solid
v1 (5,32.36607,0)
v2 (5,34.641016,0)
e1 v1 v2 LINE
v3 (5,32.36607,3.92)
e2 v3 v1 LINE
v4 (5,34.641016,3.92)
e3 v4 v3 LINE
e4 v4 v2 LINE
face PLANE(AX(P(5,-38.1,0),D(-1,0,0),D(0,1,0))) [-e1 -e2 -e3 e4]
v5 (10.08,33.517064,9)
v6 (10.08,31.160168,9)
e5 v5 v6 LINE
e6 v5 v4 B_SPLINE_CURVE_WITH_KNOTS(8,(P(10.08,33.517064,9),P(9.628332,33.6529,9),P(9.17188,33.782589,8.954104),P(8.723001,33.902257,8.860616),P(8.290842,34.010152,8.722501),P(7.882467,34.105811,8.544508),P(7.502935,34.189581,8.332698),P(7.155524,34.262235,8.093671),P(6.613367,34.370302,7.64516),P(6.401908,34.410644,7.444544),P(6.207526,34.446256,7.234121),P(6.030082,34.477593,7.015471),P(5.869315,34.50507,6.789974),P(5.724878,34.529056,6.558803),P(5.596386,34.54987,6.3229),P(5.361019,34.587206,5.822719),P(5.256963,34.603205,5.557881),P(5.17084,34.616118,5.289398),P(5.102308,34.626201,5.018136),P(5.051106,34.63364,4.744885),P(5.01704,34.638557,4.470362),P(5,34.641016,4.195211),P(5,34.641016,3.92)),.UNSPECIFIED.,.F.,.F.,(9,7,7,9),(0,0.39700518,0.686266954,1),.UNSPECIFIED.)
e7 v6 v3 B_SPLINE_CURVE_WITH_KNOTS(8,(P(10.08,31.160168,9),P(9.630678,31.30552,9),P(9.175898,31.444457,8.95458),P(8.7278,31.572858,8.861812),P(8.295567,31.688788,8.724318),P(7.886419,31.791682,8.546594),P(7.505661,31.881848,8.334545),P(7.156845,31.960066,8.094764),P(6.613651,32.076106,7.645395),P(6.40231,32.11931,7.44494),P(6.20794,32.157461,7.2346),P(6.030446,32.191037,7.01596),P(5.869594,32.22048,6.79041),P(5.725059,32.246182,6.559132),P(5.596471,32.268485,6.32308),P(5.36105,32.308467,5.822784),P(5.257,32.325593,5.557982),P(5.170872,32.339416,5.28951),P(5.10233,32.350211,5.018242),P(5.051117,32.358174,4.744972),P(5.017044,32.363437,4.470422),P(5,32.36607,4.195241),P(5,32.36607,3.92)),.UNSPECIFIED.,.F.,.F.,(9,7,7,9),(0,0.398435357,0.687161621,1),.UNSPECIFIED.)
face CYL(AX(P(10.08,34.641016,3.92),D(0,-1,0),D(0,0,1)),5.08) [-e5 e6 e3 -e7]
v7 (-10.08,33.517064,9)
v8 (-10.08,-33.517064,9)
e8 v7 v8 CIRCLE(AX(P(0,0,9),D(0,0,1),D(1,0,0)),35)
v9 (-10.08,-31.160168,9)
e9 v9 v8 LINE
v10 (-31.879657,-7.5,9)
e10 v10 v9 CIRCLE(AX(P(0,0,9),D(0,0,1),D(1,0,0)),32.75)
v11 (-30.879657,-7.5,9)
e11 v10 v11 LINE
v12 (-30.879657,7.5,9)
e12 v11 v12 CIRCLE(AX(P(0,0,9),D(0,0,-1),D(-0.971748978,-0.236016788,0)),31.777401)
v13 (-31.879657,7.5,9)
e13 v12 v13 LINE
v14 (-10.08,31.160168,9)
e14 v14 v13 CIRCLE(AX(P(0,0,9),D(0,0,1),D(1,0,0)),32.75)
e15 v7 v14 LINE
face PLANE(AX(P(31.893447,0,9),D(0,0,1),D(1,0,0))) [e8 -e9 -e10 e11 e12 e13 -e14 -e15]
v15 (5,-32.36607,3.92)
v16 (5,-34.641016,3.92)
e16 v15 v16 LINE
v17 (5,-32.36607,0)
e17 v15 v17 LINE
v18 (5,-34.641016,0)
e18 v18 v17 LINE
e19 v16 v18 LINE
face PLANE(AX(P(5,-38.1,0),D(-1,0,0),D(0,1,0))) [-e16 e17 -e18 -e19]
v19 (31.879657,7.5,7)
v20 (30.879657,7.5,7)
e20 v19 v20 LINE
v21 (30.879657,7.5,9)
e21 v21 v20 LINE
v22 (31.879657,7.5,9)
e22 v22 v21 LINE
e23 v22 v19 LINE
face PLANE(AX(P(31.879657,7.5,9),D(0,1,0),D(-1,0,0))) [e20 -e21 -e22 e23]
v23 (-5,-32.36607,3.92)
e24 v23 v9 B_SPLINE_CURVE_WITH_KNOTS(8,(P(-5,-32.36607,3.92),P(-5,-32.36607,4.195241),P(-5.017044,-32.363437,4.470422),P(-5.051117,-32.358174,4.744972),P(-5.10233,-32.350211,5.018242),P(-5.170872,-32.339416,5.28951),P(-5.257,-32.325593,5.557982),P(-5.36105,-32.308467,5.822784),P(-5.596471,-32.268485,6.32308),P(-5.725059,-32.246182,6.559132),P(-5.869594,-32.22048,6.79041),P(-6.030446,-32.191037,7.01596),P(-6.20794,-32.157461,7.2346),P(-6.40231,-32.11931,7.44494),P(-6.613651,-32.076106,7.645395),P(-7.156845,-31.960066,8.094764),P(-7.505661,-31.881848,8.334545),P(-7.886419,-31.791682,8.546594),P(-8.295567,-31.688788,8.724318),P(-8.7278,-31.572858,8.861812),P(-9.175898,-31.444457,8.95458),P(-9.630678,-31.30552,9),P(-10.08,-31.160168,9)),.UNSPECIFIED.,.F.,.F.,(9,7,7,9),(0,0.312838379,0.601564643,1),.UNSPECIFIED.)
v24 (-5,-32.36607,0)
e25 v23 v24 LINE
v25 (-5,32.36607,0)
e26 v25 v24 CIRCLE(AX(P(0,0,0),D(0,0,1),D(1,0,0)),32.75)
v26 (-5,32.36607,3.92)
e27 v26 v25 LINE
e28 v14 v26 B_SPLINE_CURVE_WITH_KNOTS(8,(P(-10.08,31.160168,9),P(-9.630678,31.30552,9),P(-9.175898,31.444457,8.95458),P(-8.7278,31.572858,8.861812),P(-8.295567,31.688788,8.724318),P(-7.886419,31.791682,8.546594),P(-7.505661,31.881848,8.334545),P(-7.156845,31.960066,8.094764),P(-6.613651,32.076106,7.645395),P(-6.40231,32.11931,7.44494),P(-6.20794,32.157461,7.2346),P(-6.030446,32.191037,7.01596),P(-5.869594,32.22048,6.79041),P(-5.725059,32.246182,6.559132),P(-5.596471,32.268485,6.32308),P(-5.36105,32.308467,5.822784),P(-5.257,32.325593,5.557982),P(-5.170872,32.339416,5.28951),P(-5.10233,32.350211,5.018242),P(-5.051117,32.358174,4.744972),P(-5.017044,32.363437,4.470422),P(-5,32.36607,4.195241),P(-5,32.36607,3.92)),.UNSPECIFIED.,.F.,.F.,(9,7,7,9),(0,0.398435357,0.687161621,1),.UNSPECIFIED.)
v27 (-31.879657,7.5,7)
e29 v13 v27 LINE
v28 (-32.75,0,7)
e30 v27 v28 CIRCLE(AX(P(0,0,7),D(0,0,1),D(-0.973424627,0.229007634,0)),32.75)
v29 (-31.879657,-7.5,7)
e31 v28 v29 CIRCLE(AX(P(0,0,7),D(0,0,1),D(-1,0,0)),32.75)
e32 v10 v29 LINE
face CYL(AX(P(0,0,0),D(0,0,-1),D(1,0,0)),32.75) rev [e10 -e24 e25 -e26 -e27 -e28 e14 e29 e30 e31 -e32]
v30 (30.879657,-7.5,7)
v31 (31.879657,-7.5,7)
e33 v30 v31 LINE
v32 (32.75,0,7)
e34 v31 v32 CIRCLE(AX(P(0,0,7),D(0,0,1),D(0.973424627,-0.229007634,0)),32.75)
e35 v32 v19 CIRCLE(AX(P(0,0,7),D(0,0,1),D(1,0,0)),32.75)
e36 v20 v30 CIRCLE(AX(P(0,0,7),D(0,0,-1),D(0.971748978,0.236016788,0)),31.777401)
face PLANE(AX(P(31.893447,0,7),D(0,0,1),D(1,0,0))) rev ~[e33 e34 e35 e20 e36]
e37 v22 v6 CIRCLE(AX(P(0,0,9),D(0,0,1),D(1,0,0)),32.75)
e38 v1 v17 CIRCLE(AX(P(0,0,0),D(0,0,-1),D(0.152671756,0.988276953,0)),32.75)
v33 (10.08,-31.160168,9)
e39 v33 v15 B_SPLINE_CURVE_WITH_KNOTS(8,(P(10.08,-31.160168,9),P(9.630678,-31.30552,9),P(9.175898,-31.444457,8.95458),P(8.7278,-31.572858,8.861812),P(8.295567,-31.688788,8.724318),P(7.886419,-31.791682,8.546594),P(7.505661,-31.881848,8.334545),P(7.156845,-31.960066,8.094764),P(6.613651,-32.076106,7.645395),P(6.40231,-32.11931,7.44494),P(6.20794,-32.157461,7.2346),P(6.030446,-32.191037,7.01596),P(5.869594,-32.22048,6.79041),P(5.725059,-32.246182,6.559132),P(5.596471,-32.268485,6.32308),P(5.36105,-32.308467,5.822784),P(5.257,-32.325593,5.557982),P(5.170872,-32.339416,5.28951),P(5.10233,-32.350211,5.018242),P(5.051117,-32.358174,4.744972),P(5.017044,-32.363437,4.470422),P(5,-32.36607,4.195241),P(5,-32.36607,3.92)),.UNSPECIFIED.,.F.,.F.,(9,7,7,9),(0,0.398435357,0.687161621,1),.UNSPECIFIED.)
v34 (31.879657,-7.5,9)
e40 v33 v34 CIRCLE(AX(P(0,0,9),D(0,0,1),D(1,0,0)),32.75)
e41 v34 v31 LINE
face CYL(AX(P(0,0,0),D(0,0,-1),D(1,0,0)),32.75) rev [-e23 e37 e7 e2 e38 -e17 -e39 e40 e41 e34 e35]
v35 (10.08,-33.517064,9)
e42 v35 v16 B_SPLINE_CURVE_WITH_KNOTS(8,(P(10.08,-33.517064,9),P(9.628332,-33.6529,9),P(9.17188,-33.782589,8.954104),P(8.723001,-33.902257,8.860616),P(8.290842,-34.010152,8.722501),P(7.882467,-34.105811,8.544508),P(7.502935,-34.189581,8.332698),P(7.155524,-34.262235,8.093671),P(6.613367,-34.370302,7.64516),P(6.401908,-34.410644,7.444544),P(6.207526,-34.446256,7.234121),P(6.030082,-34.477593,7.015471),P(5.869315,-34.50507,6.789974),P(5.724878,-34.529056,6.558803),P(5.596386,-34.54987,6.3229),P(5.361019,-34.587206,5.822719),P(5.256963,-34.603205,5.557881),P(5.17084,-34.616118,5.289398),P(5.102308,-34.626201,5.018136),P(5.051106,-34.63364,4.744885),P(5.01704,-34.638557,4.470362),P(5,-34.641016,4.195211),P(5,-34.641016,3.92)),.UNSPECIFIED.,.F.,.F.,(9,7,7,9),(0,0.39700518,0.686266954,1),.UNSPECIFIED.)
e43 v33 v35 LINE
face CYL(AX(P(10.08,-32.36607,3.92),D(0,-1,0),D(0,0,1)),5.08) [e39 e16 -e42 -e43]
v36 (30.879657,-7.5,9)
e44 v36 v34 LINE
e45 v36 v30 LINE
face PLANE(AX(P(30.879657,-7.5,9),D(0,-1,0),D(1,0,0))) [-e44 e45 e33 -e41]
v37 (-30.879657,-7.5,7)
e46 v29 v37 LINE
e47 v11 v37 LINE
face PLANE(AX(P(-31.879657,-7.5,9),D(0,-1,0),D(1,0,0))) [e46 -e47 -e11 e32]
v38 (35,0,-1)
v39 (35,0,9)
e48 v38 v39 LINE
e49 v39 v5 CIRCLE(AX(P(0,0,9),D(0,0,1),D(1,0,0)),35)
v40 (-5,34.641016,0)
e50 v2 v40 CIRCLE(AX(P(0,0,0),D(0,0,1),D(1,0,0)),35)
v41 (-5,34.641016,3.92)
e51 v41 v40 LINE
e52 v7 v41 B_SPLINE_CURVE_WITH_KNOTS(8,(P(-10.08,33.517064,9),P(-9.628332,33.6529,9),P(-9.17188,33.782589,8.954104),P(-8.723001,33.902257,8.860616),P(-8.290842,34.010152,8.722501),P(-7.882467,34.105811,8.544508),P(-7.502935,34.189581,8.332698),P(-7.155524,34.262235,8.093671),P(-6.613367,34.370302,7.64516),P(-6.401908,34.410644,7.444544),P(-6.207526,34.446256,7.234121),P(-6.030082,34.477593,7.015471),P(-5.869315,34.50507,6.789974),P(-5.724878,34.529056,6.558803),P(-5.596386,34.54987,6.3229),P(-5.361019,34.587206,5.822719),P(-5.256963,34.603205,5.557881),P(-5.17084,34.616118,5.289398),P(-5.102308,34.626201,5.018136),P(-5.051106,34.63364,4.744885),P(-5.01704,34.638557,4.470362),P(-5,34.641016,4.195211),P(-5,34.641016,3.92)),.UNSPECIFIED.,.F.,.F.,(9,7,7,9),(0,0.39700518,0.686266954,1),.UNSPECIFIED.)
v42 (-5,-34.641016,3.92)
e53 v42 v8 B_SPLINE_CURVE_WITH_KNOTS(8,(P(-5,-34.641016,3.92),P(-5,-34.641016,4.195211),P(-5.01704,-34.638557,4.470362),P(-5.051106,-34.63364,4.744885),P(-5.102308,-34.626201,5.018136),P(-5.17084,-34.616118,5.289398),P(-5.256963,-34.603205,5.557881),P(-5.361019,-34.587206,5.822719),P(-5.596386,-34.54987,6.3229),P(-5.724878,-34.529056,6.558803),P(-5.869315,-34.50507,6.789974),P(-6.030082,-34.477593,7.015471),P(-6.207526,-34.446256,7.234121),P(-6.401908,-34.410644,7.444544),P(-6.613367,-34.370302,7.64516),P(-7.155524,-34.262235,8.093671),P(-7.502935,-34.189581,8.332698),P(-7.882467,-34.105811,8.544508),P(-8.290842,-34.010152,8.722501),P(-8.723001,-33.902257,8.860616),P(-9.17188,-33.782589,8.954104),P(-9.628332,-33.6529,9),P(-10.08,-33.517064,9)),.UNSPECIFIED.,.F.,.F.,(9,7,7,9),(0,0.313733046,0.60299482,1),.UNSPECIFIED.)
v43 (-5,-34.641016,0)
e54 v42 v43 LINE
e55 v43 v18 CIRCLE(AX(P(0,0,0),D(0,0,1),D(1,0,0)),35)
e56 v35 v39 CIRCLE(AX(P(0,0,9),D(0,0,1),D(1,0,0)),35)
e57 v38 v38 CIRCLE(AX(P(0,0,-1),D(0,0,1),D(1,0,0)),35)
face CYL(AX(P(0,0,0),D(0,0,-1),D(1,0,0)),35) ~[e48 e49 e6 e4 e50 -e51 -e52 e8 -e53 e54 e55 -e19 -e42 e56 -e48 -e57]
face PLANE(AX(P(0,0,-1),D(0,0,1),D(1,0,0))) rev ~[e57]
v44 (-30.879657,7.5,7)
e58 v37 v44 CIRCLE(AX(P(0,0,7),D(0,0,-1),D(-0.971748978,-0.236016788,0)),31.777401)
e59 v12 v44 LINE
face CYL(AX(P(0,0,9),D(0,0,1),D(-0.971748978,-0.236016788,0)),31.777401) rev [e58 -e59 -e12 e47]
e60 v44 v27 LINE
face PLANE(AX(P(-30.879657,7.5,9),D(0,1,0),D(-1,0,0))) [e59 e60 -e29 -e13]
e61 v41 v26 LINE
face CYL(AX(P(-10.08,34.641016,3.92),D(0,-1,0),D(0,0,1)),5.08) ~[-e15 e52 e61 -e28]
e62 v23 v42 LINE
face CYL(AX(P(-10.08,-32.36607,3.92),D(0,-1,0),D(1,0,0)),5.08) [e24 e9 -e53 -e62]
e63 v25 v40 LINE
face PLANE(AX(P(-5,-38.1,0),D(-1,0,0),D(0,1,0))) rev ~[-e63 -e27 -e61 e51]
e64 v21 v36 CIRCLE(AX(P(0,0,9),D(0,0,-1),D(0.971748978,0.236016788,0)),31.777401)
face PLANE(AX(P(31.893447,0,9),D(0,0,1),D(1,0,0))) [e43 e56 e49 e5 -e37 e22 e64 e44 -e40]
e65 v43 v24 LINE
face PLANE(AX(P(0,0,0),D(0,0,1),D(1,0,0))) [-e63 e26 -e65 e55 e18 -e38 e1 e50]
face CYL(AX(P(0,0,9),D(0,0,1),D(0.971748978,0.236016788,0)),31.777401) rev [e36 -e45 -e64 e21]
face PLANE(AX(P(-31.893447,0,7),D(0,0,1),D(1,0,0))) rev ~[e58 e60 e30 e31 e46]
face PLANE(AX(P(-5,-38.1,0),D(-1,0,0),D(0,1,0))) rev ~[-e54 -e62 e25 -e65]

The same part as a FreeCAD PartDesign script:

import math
import FreeCAD as App
import Part
import Sketcher
from FreeCAD import Vector


def edges_at(feature, points):
    """Names of the edges that pass closest to the given points."""
    edges = feature.Shape.Edges
    near = lambda p: min(range(len(edges)), key=lambda i: edges[i].distToShape(Part.Vertex(*p))[0])
    return sorted({f"Edge{near(p) + 1}" for p in points})


def add_polygon(sketch, points):
    """Adds a closed chain of lines whose ends are joined by coincident constraints."""
    first, n = sketch.GeometryCount, len(points)
    for a, b in zip(points, points[1:] + points[:1]):
        sketch.addGeometry(Part.LineSegment(App.Vector(*a, 0), App.Vector(*b, 0)), False)
    for i in range(n):
        sketch.addConstraint(Sketcher.Constraint("Coincident", first + i, 2, first + (i + 1) % n, 1))

doc = App.newDocument("Part")
body = doc.addObject("PartDesign::Body", "Body")

sketch1 = doc.addObject("Sketcher::SketchObject", "Sketch")
body.addObject(sketch1)
sketch1.AttachmentSupport = (doc.XY_Plane, [""])
sketch1.MapMode = "FlatFace"
sketch1.addGeometry(Part.Circle(Vector(0, 0, 0), Vector(0, 0, 1), 35), False)
sketch1.addConstraint([
    Sketcher.Constraint("Coincident", 0, 3, -1, 1),
    Sketcher.Constraint("Diameter", 0, 70.0),
])
pad1 = doc.addObject("PartDesign::Pad", "Pad")
body.addObject(pad1)
pad1.Profile = sketch1
pad1.Length = 1
pad1.Reversed = True

sketch2 = doc.addObject("Sketcher::SketchObject", "Sketch001")
body.addObject(sketch2)
sketch2.AttachmentSupport = (doc.XY_Plane, [""])
sketch2.MapMode = "FlatFace"
sketch2.addGeometry([
    Part.Circle(Vector(0, 0, 0), Vector(0, 0, 1), 35),
    Part.Circle(Vector(0, 0, 0), Vector(0, 0, 1), 33),
], False)
sketch2.addConstraint([
    Sketcher.Constraint("Coincident", 0, 3, -1, 1),
    Sketcher.Constraint("Coincident", 1, 3, -1, 1),
    Sketcher.Constraint("Diameter", 0, 70.0),
    Sketcher.Constraint("Diameter", 1, 65.5),
])
pad2 = doc.addObject("PartDesign::Pad", "Pad001")
body.addObject(pad2)
pad2.Profile = sketch2
pad2.Length = 9

sketch3 = doc.addObject("Sketcher::SketchObject", "Sketch002")
body.addObject(sketch3)
sketch3.AttachmentSupport = (doc.XY_Plane, [""])
sketch3.MapMode = "FlatFace"
sketch3.AttachmentOffset = App.Placement(Vector(0, 0, 9), App.Rotation())
sketch3.addGeometry([
    Part.ArcOfCircle(Part.Circle(Vector(0, 0, 0), Vector(0, 0, 1), 32.7), math.radians(166.76), math.radians(180)),
    Part.ArcOfCircle(Part.Circle(Vector(0, 0, 0), Vector(0, 0, 1), 32.7), math.radians(180), math.radians(193.24)),
    Part.LineSegment(Vector(-31.9, -7.5, 0), Vector(-30.9, -7.5, 0)),
    Part.ArcOfCircle(Part.Circle(Vector(0, 0, 0), Vector(0, 0, 1), 31.8), math.radians(166), math.radians(194)),
    Part.LineSegment(Vector(-30.9, 7.5, 0), Vector(-31.9, 7.5, 0)),
    Part.LineSegment(Vector(30.9, -7.5, 0), Vector(31.9, -7.5, 0)),
    Part.ArcOfCircle(Part.Circle(Vector(0, 0, 0), Vector(0, 0, 1), 32.7), math.radians(-13.24), math.radians(0)),
    Part.ArcOfCircle(Part.Circle(Vector(0, 0, 0), Vector(0, 0, 1), 32.7), math.radians(0), math.radians(13.24)),
    Part.LineSegment(Vector(31.9, 7.5, 0), Vector(30.9, 7.5, 0)),
    Part.ArcOfCircle(Part.Circle(Vector(0, 0, 0), Vector(0, 0, 1), 31.8), math.radians(-14), math.radians(14)),
], False)
sketch3.addConstraint([
    Sketcher.Constraint("Tangent", 0, 2, 1, 1),
    Sketcher.Constraint("Coincident", 1, 2, 2, 1),
    Sketcher.Constraint("Coincident", 2, 2, 3, 2),
    Sketcher.Constraint("Coincident", 3, 1, 4, 1),
    Sketcher.Constraint("Coincident", 4, 2, 0, 1),
    Sketcher.Constraint("Coincident", 5, 2, 6, 1),
    Sketcher.Constraint("Tangent", 6, 2, 7, 1),
    Sketcher.Constraint("Coincident", 7, 2, 8, 1),
    Sketcher.Constraint("Coincident", 8, 2, 9, 2),
    Sketcher.Constraint("Coincident", 9, 1, 5, 1),
    Sketcher.Constraint("Horizontal", 2),
    Sketcher.Constraint("Horizontal", 4),
    Sketcher.Constraint("Horizontal", 5),
    Sketcher.Constraint("Horizontal", 8),
    Sketcher.Constraint("Coincident", 0, 3, -1, 1),
    Sketcher.Constraint("Coincident", 3, 3, -1, 1),
    Sketcher.Constraint("Coincident", 6, 3, -1, 1),
    Sketcher.Constraint("Coincident", 9, 3, -1, 1),
    Sketcher.Constraint("Equal", 0, 1),
    Sketcher.Constraint("Equal", 1, 6),
    Sketcher.Constraint("Equal", 6, 7),
    Sketcher.Constraint("Equal", 3, 9),
    Sketcher.Constraint("PointOnObject", 0, 2, -1),
    Sketcher.Constraint("PointOnObject", 6, 2, -1),
    Sketcher.Constraint("Horizontal", 2, 2, 5, 2),
    Sketcher.Constraint("Horizontal", 4, 2, 7, 2),
    Sketcher.Constraint("Vertical", 2, 2, 3, 1),
    Sketcher.Constraint("DistanceX", 2, 1, 2, 2, 1.0),
    Sketcher.Constraint("Radius", 0, 32.75),
    Sketcher.Constraint("DistanceY", 2, 2, 3, 1, 15.0),
])
pad3 = doc.addObject("PartDesign::Pad", "Pad002")
body.addObject(pad3)
pad3.Profile = sketch3
pad3.Length = 2
pad3.Reversed = True

sketch4 = doc.addObject("Sketcher::SketchObject", "Sketch003")
body.addObject(sketch4)
sketch4.AttachmentSupport = (doc.XY_Plane, [""])
sketch4.MapMode = "FlatFace"
add_polygon(sketch4, [(-5, 38), (-5, -38), (5, -38), (5, 38)])
sketch4.addConstraint([
    Sketcher.Constraint("Vertical", 0),
    Sketcher.Constraint("Horizontal", 1),
    Sketcher.Constraint("Vertical", 2),
    Sketcher.Constraint("Horizontal", 3),
    Sketcher.Constraint("Symmetric", 0, 2, 2, 2, -1, 1),
    Sketcher.Constraint("DistanceX", 1, 1, 1, 2, 10.0),
    Sketcher.Constraint("DistanceY", 0, 2, 0, 1, 76.2),
])
pocket1 = doc.addObject("PartDesign::Pocket", "Pocket")
body.addObject(pocket1)
pocket1.Profile = sketch4
pocket1.Length = 25.4
pocket1.Reversed = True
doc.recompute()

fillet = doc.addObject("PartDesign::Fillet", "Fillet")
body.addObject(fillet)
fillet.Base = (pocket1, edges_at(pocket1, [
    (-5, 33.504, 9),
    (-5, -33.504, 9),
    (5, -33.504, 9),
    (5, 33.504, 9),
]))
fillet.Radius = 5.08

doc.recompute()
